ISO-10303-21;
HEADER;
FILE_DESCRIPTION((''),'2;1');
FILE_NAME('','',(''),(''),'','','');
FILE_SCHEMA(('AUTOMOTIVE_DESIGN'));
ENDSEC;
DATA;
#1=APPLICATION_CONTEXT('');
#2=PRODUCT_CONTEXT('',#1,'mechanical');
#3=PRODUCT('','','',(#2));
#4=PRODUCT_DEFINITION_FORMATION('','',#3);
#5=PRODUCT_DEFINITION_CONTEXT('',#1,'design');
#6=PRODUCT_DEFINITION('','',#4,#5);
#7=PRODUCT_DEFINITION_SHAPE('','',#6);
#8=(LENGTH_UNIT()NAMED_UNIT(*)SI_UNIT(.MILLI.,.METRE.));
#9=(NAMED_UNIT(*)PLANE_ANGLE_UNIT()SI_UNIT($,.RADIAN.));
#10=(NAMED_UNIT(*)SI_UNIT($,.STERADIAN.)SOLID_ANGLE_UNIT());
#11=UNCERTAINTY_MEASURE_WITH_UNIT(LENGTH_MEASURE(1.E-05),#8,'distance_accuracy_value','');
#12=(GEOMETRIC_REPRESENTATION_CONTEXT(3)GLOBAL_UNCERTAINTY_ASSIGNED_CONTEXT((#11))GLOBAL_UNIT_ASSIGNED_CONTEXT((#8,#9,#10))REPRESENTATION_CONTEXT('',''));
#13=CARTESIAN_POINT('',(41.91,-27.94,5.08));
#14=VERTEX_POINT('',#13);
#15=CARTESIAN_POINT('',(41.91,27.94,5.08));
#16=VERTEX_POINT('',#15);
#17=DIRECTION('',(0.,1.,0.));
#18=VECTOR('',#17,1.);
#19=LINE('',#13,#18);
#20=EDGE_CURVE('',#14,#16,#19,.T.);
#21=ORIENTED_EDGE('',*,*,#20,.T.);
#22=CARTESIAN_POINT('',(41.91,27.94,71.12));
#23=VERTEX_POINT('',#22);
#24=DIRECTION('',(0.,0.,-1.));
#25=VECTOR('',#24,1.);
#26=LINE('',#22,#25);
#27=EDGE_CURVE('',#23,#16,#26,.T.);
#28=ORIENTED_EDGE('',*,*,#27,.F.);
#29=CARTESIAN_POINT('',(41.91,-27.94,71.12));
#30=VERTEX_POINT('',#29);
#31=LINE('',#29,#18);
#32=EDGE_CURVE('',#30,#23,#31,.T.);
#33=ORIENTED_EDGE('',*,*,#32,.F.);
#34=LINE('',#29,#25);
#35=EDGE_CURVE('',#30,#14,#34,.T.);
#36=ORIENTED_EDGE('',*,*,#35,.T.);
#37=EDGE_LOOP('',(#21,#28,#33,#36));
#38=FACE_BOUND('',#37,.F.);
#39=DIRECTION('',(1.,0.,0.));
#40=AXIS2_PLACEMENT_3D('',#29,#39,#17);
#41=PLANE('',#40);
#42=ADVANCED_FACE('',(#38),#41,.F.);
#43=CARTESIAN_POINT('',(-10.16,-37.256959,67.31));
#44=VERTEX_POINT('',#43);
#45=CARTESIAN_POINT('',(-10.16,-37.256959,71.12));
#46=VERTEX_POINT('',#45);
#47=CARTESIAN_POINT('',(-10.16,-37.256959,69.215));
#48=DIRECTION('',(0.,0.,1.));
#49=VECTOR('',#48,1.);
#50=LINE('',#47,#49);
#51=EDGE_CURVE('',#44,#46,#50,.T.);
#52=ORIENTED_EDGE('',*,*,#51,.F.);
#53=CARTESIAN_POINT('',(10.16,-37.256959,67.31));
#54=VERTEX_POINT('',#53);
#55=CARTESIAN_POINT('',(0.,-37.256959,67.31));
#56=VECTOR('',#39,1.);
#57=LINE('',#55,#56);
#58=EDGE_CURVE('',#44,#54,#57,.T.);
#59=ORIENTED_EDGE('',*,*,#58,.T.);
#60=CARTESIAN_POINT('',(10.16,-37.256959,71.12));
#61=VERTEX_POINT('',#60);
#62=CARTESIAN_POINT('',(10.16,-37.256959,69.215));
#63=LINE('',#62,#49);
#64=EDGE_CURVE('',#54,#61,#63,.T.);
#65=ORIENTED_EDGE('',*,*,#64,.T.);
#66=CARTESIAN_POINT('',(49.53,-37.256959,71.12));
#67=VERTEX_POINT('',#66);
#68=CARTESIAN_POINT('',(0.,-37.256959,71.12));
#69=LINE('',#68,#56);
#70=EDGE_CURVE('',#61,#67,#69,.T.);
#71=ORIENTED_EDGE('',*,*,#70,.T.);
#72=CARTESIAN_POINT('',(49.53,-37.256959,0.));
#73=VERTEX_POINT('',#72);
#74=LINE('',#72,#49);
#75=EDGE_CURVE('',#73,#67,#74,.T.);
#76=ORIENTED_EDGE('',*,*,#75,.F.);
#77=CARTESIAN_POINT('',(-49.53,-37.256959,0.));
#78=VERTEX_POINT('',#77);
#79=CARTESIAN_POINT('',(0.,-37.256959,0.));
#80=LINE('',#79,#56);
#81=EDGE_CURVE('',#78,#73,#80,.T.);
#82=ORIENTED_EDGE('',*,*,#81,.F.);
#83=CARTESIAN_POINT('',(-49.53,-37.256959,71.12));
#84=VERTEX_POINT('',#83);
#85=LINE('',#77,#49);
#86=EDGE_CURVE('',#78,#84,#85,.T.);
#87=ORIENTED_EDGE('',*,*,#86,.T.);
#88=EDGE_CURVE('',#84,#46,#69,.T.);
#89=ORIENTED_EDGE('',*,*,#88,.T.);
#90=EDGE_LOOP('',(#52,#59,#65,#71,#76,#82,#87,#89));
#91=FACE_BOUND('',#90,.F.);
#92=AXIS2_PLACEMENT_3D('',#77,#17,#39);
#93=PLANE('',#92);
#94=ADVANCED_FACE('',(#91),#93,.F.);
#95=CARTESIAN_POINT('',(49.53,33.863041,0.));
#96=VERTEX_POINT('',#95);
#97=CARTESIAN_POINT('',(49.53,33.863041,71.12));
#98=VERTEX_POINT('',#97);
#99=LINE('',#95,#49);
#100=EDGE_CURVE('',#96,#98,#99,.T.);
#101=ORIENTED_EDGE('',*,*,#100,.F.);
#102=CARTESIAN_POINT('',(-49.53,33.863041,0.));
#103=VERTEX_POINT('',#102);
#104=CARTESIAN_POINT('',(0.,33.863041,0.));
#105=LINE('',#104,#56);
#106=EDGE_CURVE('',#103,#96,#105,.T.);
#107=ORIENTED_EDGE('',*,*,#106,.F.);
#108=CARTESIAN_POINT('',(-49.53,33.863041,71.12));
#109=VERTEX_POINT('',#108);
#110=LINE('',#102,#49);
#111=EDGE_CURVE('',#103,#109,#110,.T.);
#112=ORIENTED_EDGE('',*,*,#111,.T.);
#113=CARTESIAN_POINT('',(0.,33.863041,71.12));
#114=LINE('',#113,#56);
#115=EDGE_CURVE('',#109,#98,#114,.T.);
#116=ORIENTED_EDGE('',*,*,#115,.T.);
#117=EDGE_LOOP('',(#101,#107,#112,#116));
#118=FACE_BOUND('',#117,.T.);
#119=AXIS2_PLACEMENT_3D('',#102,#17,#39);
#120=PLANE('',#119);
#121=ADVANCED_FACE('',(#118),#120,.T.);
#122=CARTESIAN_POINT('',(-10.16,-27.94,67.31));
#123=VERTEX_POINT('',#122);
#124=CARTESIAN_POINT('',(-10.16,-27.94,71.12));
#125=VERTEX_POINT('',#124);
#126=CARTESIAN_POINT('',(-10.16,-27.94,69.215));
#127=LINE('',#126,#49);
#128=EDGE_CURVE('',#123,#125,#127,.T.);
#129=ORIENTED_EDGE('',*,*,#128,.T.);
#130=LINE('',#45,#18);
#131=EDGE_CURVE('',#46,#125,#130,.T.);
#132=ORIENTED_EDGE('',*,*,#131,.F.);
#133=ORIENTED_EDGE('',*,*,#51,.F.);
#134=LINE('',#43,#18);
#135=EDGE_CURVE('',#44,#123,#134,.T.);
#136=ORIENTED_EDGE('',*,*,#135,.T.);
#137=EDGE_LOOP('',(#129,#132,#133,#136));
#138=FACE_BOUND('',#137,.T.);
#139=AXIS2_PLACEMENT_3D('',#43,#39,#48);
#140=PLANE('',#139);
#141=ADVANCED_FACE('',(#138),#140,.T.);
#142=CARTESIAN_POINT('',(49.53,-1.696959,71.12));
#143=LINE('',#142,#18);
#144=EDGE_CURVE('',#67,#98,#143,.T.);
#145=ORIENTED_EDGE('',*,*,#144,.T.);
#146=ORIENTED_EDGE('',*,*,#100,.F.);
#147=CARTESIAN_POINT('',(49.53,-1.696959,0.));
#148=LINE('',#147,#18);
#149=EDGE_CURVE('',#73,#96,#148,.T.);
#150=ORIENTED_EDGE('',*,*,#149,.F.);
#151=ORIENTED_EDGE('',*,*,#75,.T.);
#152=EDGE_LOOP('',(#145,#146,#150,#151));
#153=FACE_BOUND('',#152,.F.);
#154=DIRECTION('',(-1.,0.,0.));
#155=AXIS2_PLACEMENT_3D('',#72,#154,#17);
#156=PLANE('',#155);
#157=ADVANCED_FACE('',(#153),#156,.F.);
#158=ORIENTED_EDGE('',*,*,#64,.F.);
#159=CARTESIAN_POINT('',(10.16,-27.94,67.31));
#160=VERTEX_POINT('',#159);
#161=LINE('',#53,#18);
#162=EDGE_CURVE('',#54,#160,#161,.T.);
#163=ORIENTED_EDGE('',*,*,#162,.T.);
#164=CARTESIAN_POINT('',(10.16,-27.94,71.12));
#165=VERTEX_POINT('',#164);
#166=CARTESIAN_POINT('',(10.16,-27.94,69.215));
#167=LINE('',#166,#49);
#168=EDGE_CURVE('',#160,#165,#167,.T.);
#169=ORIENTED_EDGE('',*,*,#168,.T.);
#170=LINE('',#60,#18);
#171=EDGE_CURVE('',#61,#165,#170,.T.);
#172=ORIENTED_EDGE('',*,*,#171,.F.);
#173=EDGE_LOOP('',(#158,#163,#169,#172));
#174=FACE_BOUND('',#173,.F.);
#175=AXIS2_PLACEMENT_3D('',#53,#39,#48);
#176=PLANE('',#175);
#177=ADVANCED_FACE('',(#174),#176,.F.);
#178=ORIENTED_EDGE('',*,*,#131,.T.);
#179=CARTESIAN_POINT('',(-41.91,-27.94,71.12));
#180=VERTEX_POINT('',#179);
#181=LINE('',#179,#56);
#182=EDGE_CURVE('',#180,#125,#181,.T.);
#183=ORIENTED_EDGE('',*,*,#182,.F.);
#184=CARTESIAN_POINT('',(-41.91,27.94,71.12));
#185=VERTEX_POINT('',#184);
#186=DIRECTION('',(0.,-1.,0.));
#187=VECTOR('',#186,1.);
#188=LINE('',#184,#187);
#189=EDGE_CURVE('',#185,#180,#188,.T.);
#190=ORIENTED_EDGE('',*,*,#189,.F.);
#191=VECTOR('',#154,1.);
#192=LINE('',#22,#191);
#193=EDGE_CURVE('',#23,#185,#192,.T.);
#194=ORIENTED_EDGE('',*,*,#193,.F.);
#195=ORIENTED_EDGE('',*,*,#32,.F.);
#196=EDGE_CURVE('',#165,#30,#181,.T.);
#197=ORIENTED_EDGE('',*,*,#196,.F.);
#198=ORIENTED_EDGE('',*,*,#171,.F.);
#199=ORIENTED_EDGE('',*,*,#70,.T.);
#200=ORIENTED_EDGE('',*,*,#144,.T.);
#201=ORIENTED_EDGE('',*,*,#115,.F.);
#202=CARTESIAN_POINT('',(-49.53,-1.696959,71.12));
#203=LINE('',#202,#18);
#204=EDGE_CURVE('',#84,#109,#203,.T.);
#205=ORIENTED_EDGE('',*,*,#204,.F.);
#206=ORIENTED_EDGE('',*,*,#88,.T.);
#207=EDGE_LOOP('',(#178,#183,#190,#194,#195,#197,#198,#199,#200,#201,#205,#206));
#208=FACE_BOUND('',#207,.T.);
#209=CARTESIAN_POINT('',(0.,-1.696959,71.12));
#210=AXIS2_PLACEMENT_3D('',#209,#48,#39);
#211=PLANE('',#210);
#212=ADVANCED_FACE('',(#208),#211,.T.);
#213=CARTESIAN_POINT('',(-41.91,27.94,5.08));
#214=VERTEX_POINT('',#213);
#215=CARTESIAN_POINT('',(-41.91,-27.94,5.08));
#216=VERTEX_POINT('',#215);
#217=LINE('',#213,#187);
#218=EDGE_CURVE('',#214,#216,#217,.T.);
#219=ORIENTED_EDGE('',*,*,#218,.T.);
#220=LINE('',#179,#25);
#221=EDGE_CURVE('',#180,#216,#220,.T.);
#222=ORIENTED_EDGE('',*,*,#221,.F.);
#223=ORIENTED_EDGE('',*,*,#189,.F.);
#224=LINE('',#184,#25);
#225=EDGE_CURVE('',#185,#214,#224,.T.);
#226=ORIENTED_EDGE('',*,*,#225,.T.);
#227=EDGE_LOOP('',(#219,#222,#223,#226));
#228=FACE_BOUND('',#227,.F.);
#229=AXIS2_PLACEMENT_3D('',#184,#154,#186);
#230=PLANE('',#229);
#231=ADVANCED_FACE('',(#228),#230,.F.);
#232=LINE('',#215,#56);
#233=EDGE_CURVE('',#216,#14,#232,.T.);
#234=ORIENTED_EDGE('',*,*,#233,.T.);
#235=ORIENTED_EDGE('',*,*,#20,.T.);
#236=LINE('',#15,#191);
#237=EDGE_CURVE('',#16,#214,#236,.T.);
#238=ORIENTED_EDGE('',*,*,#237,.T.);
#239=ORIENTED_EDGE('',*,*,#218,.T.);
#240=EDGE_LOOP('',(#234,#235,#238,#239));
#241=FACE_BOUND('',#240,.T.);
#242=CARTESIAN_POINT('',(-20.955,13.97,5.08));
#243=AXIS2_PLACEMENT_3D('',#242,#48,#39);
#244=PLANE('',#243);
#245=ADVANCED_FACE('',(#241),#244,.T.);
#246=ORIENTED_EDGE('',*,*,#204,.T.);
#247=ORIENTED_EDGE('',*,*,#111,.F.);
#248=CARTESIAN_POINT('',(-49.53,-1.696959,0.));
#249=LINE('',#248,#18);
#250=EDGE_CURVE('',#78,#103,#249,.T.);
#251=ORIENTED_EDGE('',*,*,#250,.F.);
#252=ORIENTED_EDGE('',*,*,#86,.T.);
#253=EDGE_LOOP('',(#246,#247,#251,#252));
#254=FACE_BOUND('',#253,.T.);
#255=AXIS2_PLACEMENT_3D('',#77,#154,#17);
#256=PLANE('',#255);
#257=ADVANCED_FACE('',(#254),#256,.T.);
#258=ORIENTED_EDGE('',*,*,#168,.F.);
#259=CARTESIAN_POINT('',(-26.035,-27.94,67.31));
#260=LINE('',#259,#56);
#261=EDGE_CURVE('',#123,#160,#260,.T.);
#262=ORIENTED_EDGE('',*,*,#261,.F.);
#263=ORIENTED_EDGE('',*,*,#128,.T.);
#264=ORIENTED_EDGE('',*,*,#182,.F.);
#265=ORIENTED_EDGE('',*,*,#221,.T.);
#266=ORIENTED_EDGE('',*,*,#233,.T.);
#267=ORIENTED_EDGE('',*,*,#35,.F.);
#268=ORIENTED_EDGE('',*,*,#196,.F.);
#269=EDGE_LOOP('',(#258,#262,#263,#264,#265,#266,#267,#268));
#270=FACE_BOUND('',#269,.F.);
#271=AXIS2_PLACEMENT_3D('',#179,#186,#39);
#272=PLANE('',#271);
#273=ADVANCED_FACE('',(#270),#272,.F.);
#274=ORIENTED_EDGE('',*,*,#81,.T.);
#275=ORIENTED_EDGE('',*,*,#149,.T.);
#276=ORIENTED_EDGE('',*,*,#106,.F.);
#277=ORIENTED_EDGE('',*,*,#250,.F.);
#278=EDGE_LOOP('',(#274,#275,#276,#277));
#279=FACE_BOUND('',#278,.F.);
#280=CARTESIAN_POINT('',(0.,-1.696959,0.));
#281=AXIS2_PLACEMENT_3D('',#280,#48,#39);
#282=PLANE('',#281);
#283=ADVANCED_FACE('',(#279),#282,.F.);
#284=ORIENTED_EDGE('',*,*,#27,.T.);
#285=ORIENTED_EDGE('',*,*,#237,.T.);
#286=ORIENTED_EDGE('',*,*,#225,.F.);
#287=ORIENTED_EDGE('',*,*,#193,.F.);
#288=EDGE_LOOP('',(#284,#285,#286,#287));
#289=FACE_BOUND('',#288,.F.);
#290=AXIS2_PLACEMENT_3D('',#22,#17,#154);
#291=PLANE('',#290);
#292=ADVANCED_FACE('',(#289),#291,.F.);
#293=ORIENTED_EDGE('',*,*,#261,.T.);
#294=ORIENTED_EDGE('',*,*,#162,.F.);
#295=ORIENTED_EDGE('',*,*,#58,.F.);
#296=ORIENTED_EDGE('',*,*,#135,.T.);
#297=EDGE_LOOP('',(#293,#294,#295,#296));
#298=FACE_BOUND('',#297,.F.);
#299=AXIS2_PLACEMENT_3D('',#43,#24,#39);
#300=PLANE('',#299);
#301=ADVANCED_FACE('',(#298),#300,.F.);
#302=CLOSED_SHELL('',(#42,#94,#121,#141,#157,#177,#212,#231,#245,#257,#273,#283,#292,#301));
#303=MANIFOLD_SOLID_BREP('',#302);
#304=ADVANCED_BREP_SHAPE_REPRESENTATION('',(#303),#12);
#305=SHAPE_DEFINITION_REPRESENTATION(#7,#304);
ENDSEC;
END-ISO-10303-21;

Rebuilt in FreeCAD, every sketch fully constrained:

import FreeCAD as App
import Part
import Sketcher
from FreeCAD import Vector
Q = App.Units.Quantity


def add_polygon(sketch, points):
    """Adds a closed chain of lines whose ends are joined by coincident constraints."""
    first, n = sketch.GeometryCount, len(points)
    for a, b in zip(points, points[1:] + points[:1]):
        sketch.addGeometry(Part.LineSegment(App.Vector(*a, 0), App.Vector(*b, 0)), False)
    for i in range(n):
        sketch.addConstraint(Sketcher.Constraint("Coincident", first + i, 2, first + (i + 1) % n, 1))

doc = App.newDocument("Part")
body = doc.addObject("PartDesign::Body", "Body")

# Sketch on XY plane
sketch1 = body.newObject("Sketcher::SketchObject", "Sketch")
sketch1.AttachmentSupport = (doc.getObject("XY_Plane"), [""])
sketch1.MapMode = "FlatFace"
add_polygon(sketch1, [(-49.53, 33.863041), (-49.53, -37.256959), (49.53, -37.256959), (49.53, 33.863041)])  # lines 0-3
sketch1.addConstraint(Sketcher.Constraint("Vertical", 0))
sketch1.addConstraint(Sketcher.Constraint("Horizontal", 1))
sketch1.addConstraint(Sketcher.Constraint("Vertical", 2))
sketch1.addConstraint(Sketcher.Constraint("Horizontal", 3))
sketch1.addConstraint(Sketcher.Constraint("DistanceX", 1, 1, 1, 2, Q("3.9 in")))
sketch1.addConstraint(Sketcher.Constraint("DistanceY", 0, 2, 0, 1, Q("2.8 in")))
sketch1.addConstraint(Sketcher.Constraint("DistanceX", 0, 2, -1, 1, Q("1.95 in")))
sketch1.addConstraint(Sketcher.Constraint("DistanceY", 0, 2, -1, 1, Q("37.256959 mm")))
pad1 = body.newObject("PartDesign::Pad", "Pad")
pad1.Profile = sketch1
pad1.Length = Q("2.8 in")

# Sketch on XY plane
sketch2 = body.newObject("Sketcher::SketchObject", "Sketch001")
sketch2.AttachmentSupport = (doc.getObject("XY_Plane"), [""])
sketch2.MapMode = "FlatFace"
sketch2.AttachmentOffset = App.Placement(Vector(0, 0, 2.8 * 25.4), App.Rotation())
add_polygon(sketch2, [(-41.91, 27.94), (-41.91, -27.94), (41.91, -27.94), (41.91, 27.94)])  # lines 0-3
sketch2.addConstraint(Sketcher.Constraint("Vertical", 0))
sketch2.addConstraint(Sketcher.Constraint("Horizontal", 1))
sketch2.addConstraint(Sketcher.Constraint("Vertical", 2))
sketch2.addConstraint(Sketcher.Constraint("Horizontal", 3))
sketch2.addConstraint(Sketcher.Constraint("Symmetric", 0, 2, 2, 2, -1, 1))
sketch2.addConstraint(Sketcher.Constraint("DistanceX", 1, 1, 1, 2, Q("3.3 in")))
sketch2.addConstraint(Sketcher.Constraint("DistanceY", 0, 2, 0, 1, Q("2.2 in")))
pocket1 = body.newObject("PartDesign::Pocket", "Pocket")
pocket1.Profile = sketch2
pocket1.Length = Q("2.6 in")

# Sketch on XZ plane
sketch3 = body.newObject("Sketcher::SketchObject", "Sketch002")
sketch3.AttachmentSupport = (doc.getObject("XZ_Plane"), [""])
sketch3.MapMode = "FlatFace"
sketch3.AttachmentOffset = App.Placement(Vector(0, 0, 37.256959), App.Rotation())
add_polygon(sketch3, [(-10.16, 71.12), (-10.16, 67.31), (10.16, 67.31), (10.16, 71.12)])  # lines 0-3
sketch3.addConstraint(Sketcher.Constraint("Vertical", 0))
sketch3.addConstraint(Sketcher.Constraint("Horizontal", 1))
sketch3.addConstraint(Sketcher.Constraint("Vertical", 2))
sketch3.addConstraint(Sketcher.Constraint("Horizontal", 3))
sketch3.addConstraint(Sketcher.Constraint("DistanceX", 1, 1, 1, 2, Q("0.8 in")))
sketch3.addConstraint(Sketcher.Constraint("DistanceY", 0, 2, 0, 1, Q("0.15 in")))
sketch3.addConstraint(Sketcher.Constraint("DistanceX", 0, 2, -1, 1, Q("0.4 in")))
sketch3.addConstraint(Sketcher.Constraint("DistanceY", -1, 1, 2, 2, Q("2.8 in")))
pocket2 = body.newObject("PartDesign::Pocket", "Pocket001")
pocket2.Profile = sketch3
pocket2.Length = Q("0.4 in")

doc.recompute()
